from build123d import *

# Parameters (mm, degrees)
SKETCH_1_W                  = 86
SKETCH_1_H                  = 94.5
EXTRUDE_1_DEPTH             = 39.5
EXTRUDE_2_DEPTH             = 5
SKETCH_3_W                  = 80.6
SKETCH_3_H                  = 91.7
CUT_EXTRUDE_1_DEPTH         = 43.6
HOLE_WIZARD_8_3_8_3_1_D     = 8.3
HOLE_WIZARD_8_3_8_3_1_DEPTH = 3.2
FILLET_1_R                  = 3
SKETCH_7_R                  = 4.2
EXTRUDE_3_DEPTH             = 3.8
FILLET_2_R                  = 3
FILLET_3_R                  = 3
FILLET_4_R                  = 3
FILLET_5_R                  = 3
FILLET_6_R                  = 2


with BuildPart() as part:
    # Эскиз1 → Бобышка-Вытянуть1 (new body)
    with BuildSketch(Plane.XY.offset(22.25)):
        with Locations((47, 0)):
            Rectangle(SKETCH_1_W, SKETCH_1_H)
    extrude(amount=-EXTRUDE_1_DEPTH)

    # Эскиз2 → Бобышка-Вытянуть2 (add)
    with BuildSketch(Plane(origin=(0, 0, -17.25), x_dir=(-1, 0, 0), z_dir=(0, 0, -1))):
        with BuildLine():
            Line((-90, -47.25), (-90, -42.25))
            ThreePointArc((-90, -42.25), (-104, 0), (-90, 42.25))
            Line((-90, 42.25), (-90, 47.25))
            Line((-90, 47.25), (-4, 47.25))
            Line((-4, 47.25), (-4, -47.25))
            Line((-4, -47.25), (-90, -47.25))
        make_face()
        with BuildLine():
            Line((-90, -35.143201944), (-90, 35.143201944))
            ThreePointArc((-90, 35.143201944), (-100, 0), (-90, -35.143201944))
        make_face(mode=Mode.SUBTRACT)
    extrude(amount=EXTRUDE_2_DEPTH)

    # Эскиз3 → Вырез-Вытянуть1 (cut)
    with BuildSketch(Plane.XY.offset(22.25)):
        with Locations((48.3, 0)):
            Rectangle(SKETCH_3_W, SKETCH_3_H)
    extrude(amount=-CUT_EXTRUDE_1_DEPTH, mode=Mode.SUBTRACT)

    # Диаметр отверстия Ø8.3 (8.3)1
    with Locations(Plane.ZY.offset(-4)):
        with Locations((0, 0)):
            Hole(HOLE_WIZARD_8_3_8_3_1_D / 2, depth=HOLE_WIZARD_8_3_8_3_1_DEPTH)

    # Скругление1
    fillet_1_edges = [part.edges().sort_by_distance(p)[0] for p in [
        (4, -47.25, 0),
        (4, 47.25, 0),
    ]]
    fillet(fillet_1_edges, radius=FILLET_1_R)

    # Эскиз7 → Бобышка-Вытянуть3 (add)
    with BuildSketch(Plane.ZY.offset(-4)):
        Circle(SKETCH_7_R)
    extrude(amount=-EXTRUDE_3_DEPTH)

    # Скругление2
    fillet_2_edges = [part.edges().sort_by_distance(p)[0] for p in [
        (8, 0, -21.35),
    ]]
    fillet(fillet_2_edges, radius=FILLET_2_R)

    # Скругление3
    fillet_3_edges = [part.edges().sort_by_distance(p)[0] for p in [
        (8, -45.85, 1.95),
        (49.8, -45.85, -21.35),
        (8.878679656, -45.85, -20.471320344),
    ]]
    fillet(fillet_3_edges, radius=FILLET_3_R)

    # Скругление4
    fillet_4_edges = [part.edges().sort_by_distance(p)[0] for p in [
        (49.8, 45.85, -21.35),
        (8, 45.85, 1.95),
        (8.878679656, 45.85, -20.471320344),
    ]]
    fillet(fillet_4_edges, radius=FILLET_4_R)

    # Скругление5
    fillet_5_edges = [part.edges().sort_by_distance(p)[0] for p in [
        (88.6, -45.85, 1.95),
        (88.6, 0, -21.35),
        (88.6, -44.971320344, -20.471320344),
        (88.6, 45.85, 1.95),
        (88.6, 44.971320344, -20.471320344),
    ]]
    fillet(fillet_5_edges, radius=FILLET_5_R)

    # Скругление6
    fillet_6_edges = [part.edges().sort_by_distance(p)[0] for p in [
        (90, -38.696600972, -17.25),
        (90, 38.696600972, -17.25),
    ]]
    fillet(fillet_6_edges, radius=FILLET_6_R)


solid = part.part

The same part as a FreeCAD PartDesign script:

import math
import FreeCAD as App
import Part
import Sketcher
from FreeCAD import Vector


def edges_at(feature, points):
    """Names of the edges that pass closest to the given points."""
    edges = feature.Shape.Edges
    near = lambda p: min(range(len(edges)), key=lambda i: edges[i].distToShape(Part.Vertex(*p))[0])
    return sorted({f"Edge{near(p) + 1}" for p in points})

doc = App.newDocument("Part")
body = doc.addObject("PartDesign::Body", "Body")

# Sketch on XY plane
sketch1 = body.newObject("Sketcher::SketchObject", "Sketch")
sketch1.AttachmentSupport = (doc.getObject("XY_Plane"), [""])
sketch1.MapMode = "FlatFace"
sketch1.AttachmentOffset = App.Placement(Vector(0, 0, 22.25), App.Rotation())
sketch1.addGeometry([
    Part.LineSegment(Vector(4, 47, 0), Vector(4, -47, 0)),
    Part.LineSegment(Vector(4, -47, 0), Vector(90, -47, 0)),
    Part.LineSegment(Vector(90, -47, 0), Vector(90, 47, 0)),
    Part.LineSegment(Vector(90, 47, 0), Vector(4, 47, 0)),
], False)
sketch1.addConstraint([
    Sketcher.Constraint("Coincident", 0, 2, 1, 1),
    Sketcher.Constraint("Coincident", 1, 2, 2, 1),
    Sketcher.Constraint("Coincident", 2, 2, 3, 1),
    Sketcher.Constraint("Coincident", 3, 2, 0, 1),
    Sketcher.Constraint("Vertical", 0),
    Sketcher.Constraint("Horizontal", 1),
    Sketcher.Constraint("Vertical", 2),
    Sketcher.Constraint("Horizontal", 3),
    Sketcher.Constraint("DistanceX", 1, 1, 1, 2, 86.0),
    Sketcher.Constraint("DistanceY", 0, 2, 0, 1, 94.5),
    Sketcher.Constraint("DistanceX", -1, 1, 0, 2, 4.0),
    Sketcher.Constraint("DistanceY", 0, 2, -1, 1, 47.25),
])
pad1 = body.newObject("PartDesign::Pad", "Pad")
pad1.Profile = sketch1
pad1.Length = 39.5
pad1.Reversed = True

# Sketch on XY plane
sketch2 = body.newObject("Sketcher::SketchObject", "Sketch001")
sketch2.AttachmentSupport = (doc.getObject("XY_Plane"), [""])
sketch2.MapMode = "FlatFace"
sketch2.AttachmentOffset = App.Placement(Vector(0, 0, -17.25), App.Rotation())
sketch2.addGeometry([
    Part.LineSegment(Vector(90, -42, 0), Vector(90, -47, 0)),  # 0
    Part.LineSegment(Vector(90, -47, 0), Vector(4, -47, 0)),  # 1
    Part.LineSegment(Vector(4, -47, 0), Vector(4, 47, 0)),  # 2
    Part.LineSegment(Vector(4, 47, 0), Vector(90, 47, 0)),  # 3
    Part.LineSegment(Vector(90, 47, 0), Vector(90, 42, 0)),  # 4
    Part.ArcOfCircle(Part.Circle(Vector(33, 0, 0), Vector(0, 0, 1), 71), math.radians(-37), math.radians(37)),  # 5
    Part.ArcOfCircle(Part.Circle(Vector(33, 0, 0), Vector(0, 0, 1), 67), math.radians(-32), math.radians(32)),  # 6
    Part.LineSegment(Vector(90, 35, 0), Vector(90, -35, 0)),  # 7
], False)
sketch2.addConstraint([
    Sketcher.Constraint("Coincident", 0, 2, 1, 1),
    Sketcher.Constraint("Coincident", 1, 2, 2, 1),
    Sketcher.Constraint("Coincident", 2, 2, 3, 1),
    Sketcher.Constraint("Coincident", 3, 2, 4, 1),
    Sketcher.Constraint("Coincident", 4, 2, 5, 2),
    Sketcher.Constraint("Coincident", 5, 1, 0, 1),
    Sketcher.Constraint("Coincident", 6, 1, 7, 2),
    Sketcher.Constraint("Coincident", 7, 1, 6, 2),
    Sketcher.Constraint("Vertical", 0),
    Sketcher.Constraint("Horizontal", 1),
    Sketcher.Constraint("Vertical", 2),
    Sketcher.Constraint("Horizontal", 3),
    Sketcher.Constraint("Vertical", 4),
    Sketcher.Constraint("Vertical", 7),
    Sketcher.Constraint("Coincident", 6, 3, 5, 3),
    Sketcher.Constraint("Symmetric", 0, 2, 3, 2, -1),
    Sketcher.Constraint("PointOnObject", 5, 3, -1),
    Sketcher.Constraint("Vertical", 5, 1, 6, 1),
    Sketcher.Constraint("DistanceX", 1, 2, 1, 1, 86.0),
    Sketcher.Constraint("DistanceY", 0, 2, 0, 1, 5.0),
    Sketcher.Constraint("DistanceY", 2, 1, 2, 2, 94.5),
    Sketcher.Constraint("DistanceX", -1, 1, 0, 2, 90.0),
    Sketcher.Constraint("Radius", 5, 70.752232),
    Sketcher.Constraint("Radius", 6, 66.752232),
])
pad2 = body.newObject("PartDesign::Pad", "Pad001")
pad2.Profile = sketch2
pad2.Length = 5
pad2.Reversed = True

# Sketch on XY plane
sketch3 = body.newObject("Sketcher::SketchObject", "Sketch002")
sketch3.AttachmentSupport = (doc.getObject("XY_Plane"), [""])
sketch3.MapMode = "FlatFace"
sketch3.AttachmentOffset = App.Placement(Vector(0, 0, 22.25), App.Rotation())
sketch3.addGeometry([
    Part.LineSegment(Vector(8, 46, 0), Vector(8, -46, 0)),
    Part.LineSegment(Vector(8, -46, 0), Vector(89, -46, 0)),
    Part.LineSegment(Vector(89, -46, 0), Vector(89, 46, 0)),
    Part.LineSegment(Vector(89, 46, 0), Vector(8, 46, 0)),
], False)
sketch3.addConstraint([
    Sketcher.Constraint("Coincident", 0, 2, 1, 1),
    Sketcher.Constraint("Coincident", 1, 2, 2, 1),
    Sketcher.Constraint("Coincident", 2, 2, 3, 1),
    Sketcher.Constraint("Coincident", 3, 2, 0, 1),
    Sketcher.Constraint("Vertical", 0),
    Sketcher.Constraint("Horizontal", 1),
    Sketcher.Constraint("Vertical", 2),
    Sketcher.Constraint("Horizontal", 3),
    Sketcher.Constraint("DistanceX", 1, 1, 1, 2, 80.6),
    Sketcher.Constraint("DistanceY", 0, 2, 0, 1, 91.7),
    Sketcher.Constraint("DistanceX", -1, 1, 0, 2, 8.0),
    Sketcher.Constraint("DistanceY", 0, 2, -1, 1, 45.85),
])
pocket1 = body.newObject("PartDesign::Pocket", "Pocket")
pocket1.Profile = sketch3
pocket1.Length = 43.6

# Sketch on YZ plane
sketch4 = body.newObject("Sketcher::SketchObject", "Sketch003")
sketch4.AttachmentSupport = (doc.getObject("YZ_Plane"), [""])
sketch4.MapMode = "FlatFace"
sketch4.AttachmentOffset = App.Placement(Vector(0, 0, 4), App.Rotation())
sketch4.addGeometry(Part.Circle(Vector(0, 0, 0), Vector(0, 0, 1), 4.2), False)
sketch4.addConstraint([
    Sketcher.Constraint("Coincident", 0, 3, -1, 1),
    Sketcher.Constraint("Diameter", 0, 8.3),
])
doc.recompute()
hole = body.newObject("PartDesign::Hole", "Hole")
hole.Profile = sketch4
hole.ThreadType = "None"
hole.Diameter = 8.3
hole.DepthType = "Dimension"
hole.Depth = 3.2
hole.DrillPoint = "Flat"
hole.Reversed = True
doc.recompute()

fillet = body.newObject("PartDesign::Fillet", "Fillet")
fillet.Base = (hole, edges_at(hole, [(4, -47.25, 0), (4, 47.25, 0)]))
fillet.Radius = 3

# Sketch on YZ plane
sketch5 = body.newObject("Sketcher::SketchObject", "Sketch004")
sketch5.AttachmentSupport = (doc.getObject("YZ_Plane"), [""])
sketch5.MapMode = "FlatFace"
sketch5.AttachmentOffset = App.Placement(Vector(0, 0, 4), App.Rotation())
sketch5.addGeometry(Part.Circle(Vector(0, 0, 0), Vector(0, 0, 1), 4.2), False)
sketch5.addConstraint([
    Sketcher.Constraint("Coincident", 0, 3, -1, 1),
    Sketcher.Constraint("Diameter", 0, 8.4),
])
pad3 = body.newObject("PartDesign::Pad", "Pad002")
pad3.Profile = sketch5
pad3.Length = 3.8
doc.recompute()

fillet2 = body.newObject("PartDesign::Fillet", "Fillet001")
fillet2.Base = (pad3, edges_at(pad3, [(8, 0, -21.35)]))
fillet2.Radius = 3
doc.recompute()

fillet3 = body.newObject("PartDesign::Fillet", "Fillet002")
fillet3.Base = (fillet2, edges_at(fillet2, [(8, -45.85, 1.95), (49.8, -45.85, -21.35), (8.879, -45.85, -20.471)]))
fillet3.Radius = 3
doc.recompute()

fillet4 = body.newObject("PartDesign::Fillet", "Fillet003")
fillet4.Base = (fillet3, edges_at(fillet3, [(49.8, 45.85, -21.35), (8, 45.85, 1.95), (8.879, 45.85, -20.471)]))
fillet4.Radius = 3
doc.recompute()

fillet5 = body.newObject("PartDesign::Fillet", "Fillet004")
fillet5.Base = (fillet4, edges_at(fillet4, [
    (88.6, -45.85, 1.95),
    (88.6, 0, -21.35),
    (88.6, -44.971, -20.471),
    (88.6, 45.85, 1.95),
    (88.6, 44.971, -20.471),
]))
fillet5.Radius = 3
doc.recompute()

fillet6 = body.newObject("PartDesign::Fillet", "Fillet005")
fillet6.Base = (fillet5, edges_at(fillet5, [(90, -38.697, -17.25), (90, 38.697, -17.25)]))
fillet6.Radius = 2

doc.recompute()
